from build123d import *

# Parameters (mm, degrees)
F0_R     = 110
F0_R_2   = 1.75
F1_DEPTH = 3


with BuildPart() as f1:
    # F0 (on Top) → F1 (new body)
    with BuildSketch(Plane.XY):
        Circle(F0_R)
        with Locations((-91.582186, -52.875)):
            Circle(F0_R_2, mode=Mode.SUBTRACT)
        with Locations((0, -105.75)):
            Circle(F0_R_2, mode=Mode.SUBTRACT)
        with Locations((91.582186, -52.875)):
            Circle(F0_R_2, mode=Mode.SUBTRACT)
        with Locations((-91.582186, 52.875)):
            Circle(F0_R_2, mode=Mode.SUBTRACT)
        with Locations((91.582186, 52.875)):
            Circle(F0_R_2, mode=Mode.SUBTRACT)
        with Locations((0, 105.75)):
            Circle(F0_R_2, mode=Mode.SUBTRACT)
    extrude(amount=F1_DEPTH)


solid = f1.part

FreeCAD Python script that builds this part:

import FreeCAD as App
import Part
import Sketcher
from FreeCAD import Vector
Q = App.Units.Quantity

doc = App.newDocument("Part")
body = doc.addObject("PartDesign::Body", "Body")

# Sketch on XY plane
sketch1 = body.newObject("Sketcher::SketchObject", "Sketch")
sketch1.AttachmentSupport = (doc.getObject("XY_Plane"), [""])
sketch1.MapMode = "FlatFace"
sketch1.addGeometry([
    Part.Circle(Vector(0, 0, 0), Vector(0, 0, 1), 110),  # 0
    Part.Circle(Vector(-91.6, -52.9, 0), Vector(0, 0, 1), 1.8),  # 1
    Part.Circle(Vector(0, -105.8, 0), Vector(0, 0, 1), 1.8),  # 2
    Part.Circle(Vector(91.6, -52.9, 0), Vector(0, 0, 1), 1.8),  # 3
    Part.Circle(Vector(-91.6, 52.9, 0), Vector(0, 0, 1), 1.8),  # 4
    Part.Circle(Vector(91.6, 52.9, 0), Vector(0, 0, 1), 1.8),  # 5
    Part.Circle(Vector(0, 105.8, 0), Vector(0, 0, 1), 1.8),  # 6
], False)
sketch1.addConstraint([
    Sketcher.Constraint("Coincident", 0, 3, -1, 1),
    Sketcher.Constraint("Equal", 1, 2),
    Sketcher.Constraint("Equal", 2, 3),
    Sketcher.Constraint("Equal", 3, 4),
    Sketcher.Constraint("Equal", 4, 5),
    Sketcher.Constraint("Equal", 5, 6),
    Sketcher.Constraint("Symmetric", 3, 3, 4, 3, -1, 1),
    Sketcher.Constraint("Symmetric", 1, 3, 5, 3, -1, 1),
    Sketcher.Constraint("Symmetric", 2, 3, 6, 3, -1, 1),
    Sketcher.Constraint("Symmetric", 1, 3, 3, 3, -2),
    Sketcher.Constraint("PointOnObject", 2, 3, -2),
    Sketcher.Constraint("Diameter", 0, Q("220 mm")),
    Sketcher.Constraint("Diameter", 1, Q("3.5 mm")),
    Sketcher.Constraint("DistanceY", 2, 3, -1, 1, Q("105.75 mm")),
    Sketcher.Constraint("DistanceY", 1, 3, 4, 3, Q("105.75 mm")),
    Sketcher.Constraint("DistanceX", 1, 3, 3, 3, Q("183.164372 mm")),
])
pad1 = body.newObject("PartDesign::Pad", "Pad")
pad1.Profile = sketch1
pad1.Length = 3

doc.recompute()
